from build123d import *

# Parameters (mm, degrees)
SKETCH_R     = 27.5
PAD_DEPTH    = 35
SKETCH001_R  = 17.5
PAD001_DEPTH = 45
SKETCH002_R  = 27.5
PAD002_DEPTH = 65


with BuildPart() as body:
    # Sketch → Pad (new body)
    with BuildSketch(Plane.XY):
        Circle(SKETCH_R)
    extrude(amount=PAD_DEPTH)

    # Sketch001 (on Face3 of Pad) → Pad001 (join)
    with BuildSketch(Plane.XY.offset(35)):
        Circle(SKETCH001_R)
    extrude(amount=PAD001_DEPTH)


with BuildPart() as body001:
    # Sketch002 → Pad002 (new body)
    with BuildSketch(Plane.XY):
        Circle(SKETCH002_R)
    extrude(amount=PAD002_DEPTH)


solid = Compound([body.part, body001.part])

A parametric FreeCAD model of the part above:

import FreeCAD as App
import Part
import Sketcher

V = App.Vector
Q = App.Units.Quantity

doc = App.newDocument("Part")
params = doc.addObject("Spreadsheet::Sheet", "Params")
for row, (alias, value) in enumerate([
    ("sketch1_diameter", "55 mm"),
    ("pad1_length", "35 mm"),
    ("sketch2_diameter", "35 mm"),
    ("pad2_length", "45 mm"),
    ("sketch3_diameter", "55 mm"),
    ("pad3_length", "65 mm"),
], start=1):
    params.set(f"A{row}", alias)
    params.set(f"B{row}", "=" + value)
    params.setAlias(f"B{row}", alias)

body = doc.addObject("PartDesign::Body", "Body")

# Sketch on XY plane
sketch1 = body.newObject("Sketcher::SketchObject", "Sketch")
sketch1.AttachmentSupport = (doc.getObject("XY_Plane"), [""])
sketch1.MapMode = "FlatFace"
sketch1.addGeometry(Part.Circle(V(0, 0, 0), V(0, 0, 1), 28), False)
sketch1.addConstraint([
    Sketcher.Constraint("Coincident", 0, 3, -1, 1),
    Sketcher.Constraint("Diameter", 0, Q("55 mm")),
])
sketch1.setExpression("Constraints[1]", "Params.sketch1_diameter")
pad1 = body.newObject("PartDesign::Pad", "Pad")
pad1.Profile = sketch1
pad1.setExpression("Length", "Params.pad1_length")

# Sketch on XY plane
sketch2 = body.newObject("Sketcher::SketchObject", "Sketch001")
sketch2.AttachmentSupport = (doc.getObject("XY_Plane"), [""])
sketch2.MapMode = "FlatFace"
sketch2.AttachmentOffset = App.Placement(V(0, 0, 35), App.Rotation())
sketch2.addGeometry(Part.Circle(V(0, 0, 0), V(0, 0, 1), 18), False)
sketch2.addConstraint([
    Sketcher.Constraint("Coincident", 0, 3, -1, 1),
    Sketcher.Constraint("Diameter", 0, Q("35 mm")),
])
sketch2.setExpression("Constraints[1]", "Params.sketch2_diameter")
pad2 = body.newObject("PartDesign::Pad", "Pad001")
pad2.Profile = sketch2
pad2.setExpression("Length", "Params.pad2_length")
body2 = doc.addObject("PartDesign::Body", "Body001")

# Sketch on XY plane
sketch3 = body2.newObject("Sketcher::SketchObject", "Sketch002")
sketch3.AttachmentSupport = (doc.getObject("XY_Plane001"), [""])
sketch3.MapMode = "FlatFace"
sketch3.addGeometry(Part.Circle(V(0, 0, 0), V(0, 0, 1), 28), False)
sketch3.addConstraint([
    Sketcher.Constraint("Coincident", 0, 3, -1, 1),
    Sketcher.Constraint("Diameter", 0, Q("55 mm")),
])
sketch3.setExpression("Constraints[1]", "Params.sketch3_diameter")
pad3 = body2.newObject("PartDesign::Pad", "Pad002")
pad3.Profile = sketch3
pad3.setExpression("Length", "Params.pad3_length")

doc.recompute()
